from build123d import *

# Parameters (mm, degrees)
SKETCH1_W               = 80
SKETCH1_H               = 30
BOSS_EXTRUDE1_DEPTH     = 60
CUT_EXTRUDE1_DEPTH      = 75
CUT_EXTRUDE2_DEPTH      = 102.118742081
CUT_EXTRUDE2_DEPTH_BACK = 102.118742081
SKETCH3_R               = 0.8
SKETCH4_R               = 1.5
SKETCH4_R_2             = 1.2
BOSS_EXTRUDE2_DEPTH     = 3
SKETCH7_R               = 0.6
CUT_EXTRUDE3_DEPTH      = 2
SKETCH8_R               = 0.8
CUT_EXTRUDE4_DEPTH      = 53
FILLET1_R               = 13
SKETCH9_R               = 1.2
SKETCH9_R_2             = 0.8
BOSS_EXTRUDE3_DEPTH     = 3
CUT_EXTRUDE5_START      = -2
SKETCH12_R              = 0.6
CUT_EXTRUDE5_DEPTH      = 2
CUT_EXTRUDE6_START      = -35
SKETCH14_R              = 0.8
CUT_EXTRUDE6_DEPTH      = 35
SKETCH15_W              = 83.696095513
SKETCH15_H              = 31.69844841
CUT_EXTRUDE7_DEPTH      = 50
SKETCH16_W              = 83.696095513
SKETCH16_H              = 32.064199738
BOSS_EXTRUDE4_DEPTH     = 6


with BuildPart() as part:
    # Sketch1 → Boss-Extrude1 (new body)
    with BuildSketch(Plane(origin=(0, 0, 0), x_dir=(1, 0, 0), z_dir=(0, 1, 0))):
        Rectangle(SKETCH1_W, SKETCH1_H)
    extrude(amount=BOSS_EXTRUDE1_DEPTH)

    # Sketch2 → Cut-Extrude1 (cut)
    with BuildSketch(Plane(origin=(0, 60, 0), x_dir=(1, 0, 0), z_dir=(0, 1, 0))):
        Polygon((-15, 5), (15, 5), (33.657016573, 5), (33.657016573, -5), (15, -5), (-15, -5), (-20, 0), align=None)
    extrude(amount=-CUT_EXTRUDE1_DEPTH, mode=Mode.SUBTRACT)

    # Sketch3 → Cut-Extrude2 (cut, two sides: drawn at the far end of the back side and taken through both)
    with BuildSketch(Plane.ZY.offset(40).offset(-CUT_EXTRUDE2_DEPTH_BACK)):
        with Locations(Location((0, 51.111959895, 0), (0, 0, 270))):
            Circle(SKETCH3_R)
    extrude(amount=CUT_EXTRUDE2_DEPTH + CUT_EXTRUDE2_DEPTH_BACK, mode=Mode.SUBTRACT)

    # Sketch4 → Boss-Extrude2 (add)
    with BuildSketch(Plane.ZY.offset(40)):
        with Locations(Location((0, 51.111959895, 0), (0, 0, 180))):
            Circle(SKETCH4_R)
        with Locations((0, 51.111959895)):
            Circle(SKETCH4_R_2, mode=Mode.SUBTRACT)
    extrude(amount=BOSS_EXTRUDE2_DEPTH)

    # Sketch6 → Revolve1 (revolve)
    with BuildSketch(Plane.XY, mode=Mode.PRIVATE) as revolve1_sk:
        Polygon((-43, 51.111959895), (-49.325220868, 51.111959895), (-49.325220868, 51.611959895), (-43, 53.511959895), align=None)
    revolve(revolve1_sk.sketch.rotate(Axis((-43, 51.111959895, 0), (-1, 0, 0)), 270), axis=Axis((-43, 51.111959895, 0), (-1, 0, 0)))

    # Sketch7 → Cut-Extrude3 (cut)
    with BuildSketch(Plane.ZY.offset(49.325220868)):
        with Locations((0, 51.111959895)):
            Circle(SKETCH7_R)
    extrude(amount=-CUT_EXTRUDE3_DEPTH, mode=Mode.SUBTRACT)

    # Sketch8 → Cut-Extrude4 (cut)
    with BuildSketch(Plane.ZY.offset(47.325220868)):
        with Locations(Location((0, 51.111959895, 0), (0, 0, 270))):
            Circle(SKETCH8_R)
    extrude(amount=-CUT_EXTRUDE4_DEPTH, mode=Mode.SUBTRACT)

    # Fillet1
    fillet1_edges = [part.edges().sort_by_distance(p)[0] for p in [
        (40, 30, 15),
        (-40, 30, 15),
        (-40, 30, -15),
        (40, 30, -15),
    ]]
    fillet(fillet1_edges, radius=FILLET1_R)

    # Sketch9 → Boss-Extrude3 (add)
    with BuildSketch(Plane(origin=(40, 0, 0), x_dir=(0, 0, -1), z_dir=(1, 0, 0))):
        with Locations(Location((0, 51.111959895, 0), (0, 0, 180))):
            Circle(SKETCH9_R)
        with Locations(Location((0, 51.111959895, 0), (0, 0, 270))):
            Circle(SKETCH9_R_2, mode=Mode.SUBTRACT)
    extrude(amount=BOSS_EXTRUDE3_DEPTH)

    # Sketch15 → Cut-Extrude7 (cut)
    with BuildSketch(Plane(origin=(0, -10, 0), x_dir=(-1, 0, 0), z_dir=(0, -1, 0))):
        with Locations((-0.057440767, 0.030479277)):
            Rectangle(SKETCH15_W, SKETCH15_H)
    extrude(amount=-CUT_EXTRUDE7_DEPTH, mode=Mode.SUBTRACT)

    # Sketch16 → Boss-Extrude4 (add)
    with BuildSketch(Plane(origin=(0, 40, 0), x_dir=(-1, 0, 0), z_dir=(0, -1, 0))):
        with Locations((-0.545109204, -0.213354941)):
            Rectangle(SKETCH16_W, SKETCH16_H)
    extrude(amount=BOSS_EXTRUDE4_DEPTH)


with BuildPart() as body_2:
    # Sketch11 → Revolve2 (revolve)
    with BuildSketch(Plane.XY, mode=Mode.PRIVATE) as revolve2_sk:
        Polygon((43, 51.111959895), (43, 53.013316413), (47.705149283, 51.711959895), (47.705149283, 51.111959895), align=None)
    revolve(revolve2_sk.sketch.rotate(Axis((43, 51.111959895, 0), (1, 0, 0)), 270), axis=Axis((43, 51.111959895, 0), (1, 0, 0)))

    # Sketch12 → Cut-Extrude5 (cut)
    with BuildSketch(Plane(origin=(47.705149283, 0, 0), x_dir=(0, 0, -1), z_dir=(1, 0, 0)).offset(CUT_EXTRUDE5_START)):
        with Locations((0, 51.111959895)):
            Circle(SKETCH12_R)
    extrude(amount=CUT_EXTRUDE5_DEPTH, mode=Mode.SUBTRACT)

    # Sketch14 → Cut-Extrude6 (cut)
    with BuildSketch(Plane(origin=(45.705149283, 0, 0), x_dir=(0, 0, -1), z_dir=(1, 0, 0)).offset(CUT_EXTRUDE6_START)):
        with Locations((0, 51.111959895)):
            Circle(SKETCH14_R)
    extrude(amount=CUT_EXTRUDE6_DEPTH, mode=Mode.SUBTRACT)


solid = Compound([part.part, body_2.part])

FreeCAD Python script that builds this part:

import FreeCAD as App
import Part
import Sketcher
from FreeCAD import Vector
Q = App.Units.Quantity


def edges_at(feature, points):
    """Names of the edges that pass closest to the given points."""
    edges = feature.Shape.Edges
    near = lambda p: min(range(len(edges)), key=lambda i: edges[i].distToShape(Part.Vertex(*p))[0])
    return sorted({f"Edge{near(p) + 1}" for p in points})


def add_polygon(sketch, points):
    """Adds a closed chain of lines whose ends are joined by coincident constraints."""
    first, n = sketch.GeometryCount, len(points)
    for a, b in zip(points, points[1:] + points[:1]):
        sketch.addGeometry(Part.LineSegment(App.Vector(*a, 0), App.Vector(*b, 0)), False)
    for i in range(n):
        sketch.addConstraint(Sketcher.Constraint("Coincident", first + i, 2, first + (i + 1) % n, 1))

doc = App.newDocument("Part")
params = doc.addObject("Spreadsheet::Sheet", "Params")
for row, (alias, value) in enumerate([
    ("sketch1_width", "80 mm"),
    ("sketch1_height", "30 mm"),
    ("pad1_length", "60 mm"),
    ("sketch2_height", "10 mm"),
    ("pocket1_length", "75 mm"),
    ("sketch3_diameter", "1.6 mm"),
    ("sketch4_diameter", "3 mm"),
    ("sketch4_diameter2", "2.4 mm"),
    ("pad2_length", "3 mm"),
    ("sketch5_height", "2.4 mm"),
    ("sketch5_height2", "0.5 mm"),
    ("revolution_angle", "360 deg"),
    ("sketch6_diameter", "1.2 mm"),
    ("pocket3_length", "2 mm"),
    ("sketch7_diameter", "1.6 mm"),
    ("pocket4_length", "53 mm"),
    ("fillet_radius", "13 mm"),
    ("sketch8_diameter", "2.4 mm"),
    ("sketch8_diameter2", "1.6 mm"),
    ("pad3_length", "3 mm"),
    ("pocket5_length", "50 mm"),
    ("pad4_length", "6 mm"),
    ("sketch11_height", "0.6 mm"),
    ("revolution2_angle", "360 deg"),
    ("sketch12_diameter", "1.2 mm"),
    ("pocket6_length", "2 mm"),
    ("sketch13_diameter", "1.6 mm"),
    ("pocket7_length", "35 mm"),
], start=1):
    params.set(f"A{row}", alias)
    params.set(f"B{row}", "=" + value)
    params.setAlias(f"B{row}", alias)

body = doc.addObject("PartDesign::Body", "Body")

# Sketch on XZ plane
sketch1 = doc.addObject("Sketcher::SketchObject", "Sketch")
body.addObject(sketch1)
sketch1.AttachmentSupport = (doc.XZ_Plane, [""])
sketch1.MapMode = "FlatFace"
add_polygon(sketch1, [(-40, -15), (-40, 15), (40, 15), (40, -15)])  # lines 0-3
sketch1.addConstraint([
    Sketcher.Constraint("Vertical", 0),
    Sketcher.Constraint("Horizontal", 1),
    Sketcher.Constraint("Vertical", 2),
    Sketcher.Constraint("Horizontal", 3),
    Sketcher.Constraint("Symmetric", 0, 2, 2, 2, -1, 1),
    Sketcher.Constraint("DistanceX", 1, 1, 1, 2, Q("80 mm")),
    Sketcher.Constraint("DistanceY", 0, 1, 0, 2, Q("30 mm")),
])
sketch1.setExpression("Constraints[9]", "Params.sketch1_width")
sketch1.setExpression("Constraints[10]", "Params.sketch1_height")
pad1 = doc.addObject("PartDesign::Pad", "Pad")
body.addObject(pad1)
pad1.Profile = sketch1
pad1.setExpression("Length", "Params.pad1_length")
pad1.Reversed = True

# Sketch on XZ plane
sketch2 = doc.addObject("Sketcher::SketchObject", "Sketch001")
body.addObject(sketch2)
sketch2.AttachmentSupport = (doc.XZ_Plane, [""])
sketch2.MapMode = "FlatFace"
sketch2.AttachmentOffset = App.Placement(Vector(0, 0, -60), App.Rotation())
add_polygon(sketch2, [(34, -5), (-15, -5), (-20, 0), (-15, 5), (34, 5)])  # lines 0-4
sketch2.addConstraint([
    Sketcher.Constraint("Horizontal", 0),
    Sketcher.Constraint("Horizontal", 3),
    Sketcher.Constraint("Vertical", 4),
    Sketcher.Constraint("Symmetric", 0, 2, 2, 2, -1),
    Sketcher.Constraint("PointOnObject", 1, 2, -1),
    Sketcher.Constraint("Perpendicular", 1, 2),
    Sketcher.Constraint("DistanceY", 4, 2, 4, 1, Q("10 mm")),
    Sketcher.Constraint("DistanceX", 0, 2, -1, 1, Q("15 mm")),
    Sketcher.Constraint("DistanceX", 0, 2, 0, 1, Q("48.657017 mm")),
])
sketch2.setExpression("Constraints[11]", "Params.sketch2_height")
pocket1 = doc.addObject("PartDesign::Pocket", "Pocket")
body.addObject(pocket1)
pocket1.Profile = sketch2
pocket1.setExpression("Length", "Params.pocket1_length")
pocket1.Reversed = True

# Sketch on YZ plane
sketch3 = doc.addObject("Sketcher::SketchObject", "Sketch002")
body.addObject(sketch3)
sketch3.AttachmentSupport = (doc.YZ_Plane, [""])
sketch3.MapMode = "FlatFace"
sketch3.AttachmentOffset = App.Placement(Vector(0, 0, -40), App.Rotation())
sketch3.addGeometry(Part.Circle(Vector(51.1, 0, 0), Vector(0, 0, 1), 0.8), False)
sketch3.addConstraint([
    Sketcher.Constraint("PointOnObject", 0, 3, -1),
    Sketcher.Constraint("Diameter", 0, Q("1.6 mm")),
    Sketcher.Constraint("DistanceX", -1, 1, 0, 3, Q("51.11196 mm")),
])
sketch3.setExpression("Constraints[1]", "Params.sketch3_diameter")
pocket2 = doc.addObject("PartDesign::Pocket", "Pocket001")
body.addObject(pocket2)
pocket2.Profile = sketch3
pocket2.Type = "ThroughAll"
pocket2.Midplane = True

# Sketch on YZ plane
sketch4 = doc.addObject("Sketcher::SketchObject", "Sketch003")
body.addObject(sketch4)
sketch4.AttachmentSupport = (doc.YZ_Plane, [""])
sketch4.MapMode = "FlatFace"
sketch4.AttachmentOffset = App.Placement(Vector(0, 0, -40), App.Rotation())
sketch4.addGeometry([
    Part.Circle(Vector(51.1, 0, 0), Vector(0, 0, 1), 1.5),
    Part.Circle(Vector(51.1, 0, 0), Vector(0, 0, 1), 1.2),
], False)
sketch4.addConstraint([
    Sketcher.Constraint("Coincident", 1, 3, 0, 3),
    Sketcher.Constraint("PointOnObject", 0, 3, -1),
    Sketcher.Constraint("Diameter", 0, Q("3 mm")),
    Sketcher.Constraint("Diameter", 1, Q("2.4 mm")),
    Sketcher.Constraint("DistanceX", -1, 1, 0, 3, Q("51.11196 mm")),
])
sketch4.setExpression("Constraints[2]", "Params.sketch4_diameter")
sketch4.setExpression("Constraints[3]", "Params.sketch4_diameter2")
pad2 = doc.addObject("PartDesign::Pad", "Pad001")
body.addObject(pad2)
pad2.Profile = sketch4
pad2.setExpression("Length", "Params.pad2_length")
pad2.Reversed = True

# Sketch on XY plane
sketch5 = doc.addObject("Sketcher::SketchObject", "Sketch004")
body.addObject(sketch5)
sketch5.AttachmentSupport = (doc.XY_Plane, [""])
sketch5.MapMode = "FlatFace"
add_polygon(sketch5, [(-49.3, 51.1), (-43, 51.1), (-43, 53.5), (-49.3, 51.6)])  # lines 0-3
sketch5.addGeometry(Part.LineSegment(Vector(-43, 51.1, 0), Vector(-49.3, 51.1, 0)), True)  # axis
sketch5.addConstraint([
    Sketcher.Constraint("Horizontal", 0),
    Sketcher.Constraint("Vertical", 1),
    Sketcher.Constraint("Vertical", 3),
    Sketcher.Constraint("Horizontal", 4),
    Sketcher.Constraint("Coincident", 4, 1, 0, 2),
    Sketcher.Constraint("Vertical", 2, 2, 4, 2),
    Sketcher.Constraint("DistanceY", 1, 1, 1, 2, Q("2.4 mm")),
    Sketcher.Constraint("DistanceY", 3, 2, 3, 1, Q("0.5 mm")),
    Sketcher.Constraint("DistanceX", 0, 2, -1, 1, Q("43 mm")),
    Sketcher.Constraint("DistanceX", 0, 1, 0, 2, Q("6.325221 mm")),
    Sketcher.Constraint("DistanceY", -1, 1, 0, 2, Q("51.11196 mm")),
])
sketch5.setExpression("Constraints[10]", "Params.sketch5_height")
sketch5.setExpression("Constraints[11]", "Params.sketch5_height2")
revolution = doc.addObject("PartDesign::Revolution", "Revolution")
body.addObject(revolution)
revolution.Profile = sketch5
revolution.ReferenceAxis = (sketch5, ["Axis0"])
revolution.setExpression("Angle", "Params.revolution_angle")

# Sketch on YZ plane
sketch6 = doc.addObject("Sketcher::SketchObject", "Sketch005")
body.addObject(sketch6)
sketch6.AttachmentSupport = (doc.YZ_Plane, [""])
sketch6.MapMode = "FlatFace"
sketch6.AttachmentOffset = App.Placement(Vector(0, 0, -49.325221), App.Rotation())
sketch6.addGeometry(Part.Circle(Vector(51.1, 0, 0), Vector(0, 0, 1), 0.6), False)
sketch6.addConstraint([
    Sketcher.Constraint("PointOnObject", 0, 3, -1),
    Sketcher.Constraint("Diameter", 0, Q("1.2 mm")),
    Sketcher.Constraint("DistanceX", -1, 1, 0, 3, Q("51.11196 mm")),
])
sketch6.setExpression("Constraints[1]", "Params.sketch6_diameter")
pocket3 = doc.addObject("PartDesign::Pocket", "Pocket002")
body.addObject(pocket3)
pocket3.Profile = sketch6
pocket3.setExpression("Length", "Params.pocket3_length")
pocket3.Reversed = True

# Sketch on YZ plane
sketch7 = doc.addObject("Sketcher::SketchObject", "Sketch006")
body.addObject(sketch7)
sketch7.AttachmentSupport = (doc.YZ_Plane, [""])
sketch7.MapMode = "FlatFace"
sketch7.AttachmentOffset = App.Placement(Vector(0, 0, -47.325221), App.Rotation())
sketch7.addGeometry(Part.Circle(Vector(51.1, 0, 0), Vector(0, 0, 1), 0.8), False)
sketch7.addConstraint([
    Sketcher.Constraint("PointOnObject", 0, 3, -1),
    Sketcher.Constraint("Diameter", 0, Q("1.6 mm")),
    Sketcher.Constraint("DistanceX", -1, 1, 0, 3, Q("51.11196 mm")),
])
sketch7.setExpression("Constraints[1]", "Params.sketch7_diameter")
pocket4 = doc.addObject("PartDesign::Pocket", "Pocket003")
body.addObject(pocket4)
pocket4.Profile = sketch7
pocket4.setExpression("Length", "Params.pocket4_length")
pocket4.Reversed = True
doc.recompute()

fillet = doc.addObject("PartDesign::Fillet", "Fillet")
body.addObject(fillet)
fillet.Base = (pocket4, edges_at(pocket4, [
    (40, 30, 15),
    (-40, 30, 15),
    (-40, 30, -15),
    (40, 30, -15),
]))
fillet.setExpression("Radius", "Params.fillet_radius")

# Sketch on YZ plane
sketch8 = doc.addObject("Sketcher::SketchObject", "Sketch007")
body.addObject(sketch8)
sketch8.AttachmentSupport = (doc.YZ_Plane, [""])
sketch8.MapMode = "FlatFace"
sketch8.AttachmentOffset = App.Placement(Vector(0, 0, 40), App.Rotation())
sketch8.addGeometry([
    Part.Circle(Vector(51.1, 0, 0), Vector(0, 0, 1), 1.2),
    Part.Circle(Vector(51.1, 0, 0), Vector(0, 0, 1), 0.8),
], False)
sketch8.addConstraint([
    Sketcher.Constraint("Coincident", 1, 3, 0, 3),
    Sketcher.Constraint("PointOnObject", 0, 3, -1),
    Sketcher.Constraint("Diameter", 0, Q("2.4 mm")),
    Sketcher.Constraint("Diameter", 1, Q("1.6 mm")),
    Sketcher.Constraint("DistanceX", -1, 1, 0, 3, Q("51.11196 mm")),
])
sketch8.setExpression("Constraints[2]", "Params.sketch8_diameter")
sketch8.setExpression("Constraints[3]", "Params.sketch8_diameter2")
pad3 = doc.addObject("PartDesign::Pad", "Pad002")
body.addObject(pad3)
pad3.Profile = sketch8
pad3.setExpression("Length", "Params.pad3_length")

# Sketch on XZ plane
sketch9 = doc.addObject("Sketcher::SketchObject", "Sketch008")
body.addObject(sketch9)
sketch9.AttachmentSupport = (doc.XZ_Plane, [""])
sketch9.MapMode = "FlatFace"
sketch9.AttachmentOffset = App.Placement(Vector(0, 0, 10), App.Rotation())
add_polygon(sketch9, [(42, -16), (42, 16), (-42, 16), (-42, -16)])  # lines 0-3
sketch9.addConstraint([
    Sketcher.Constraint("Vertical", 0),
    Sketcher.Constraint("Horizontal", 1),
    Sketcher.Constraint("Vertical", 2),
    Sketcher.Constraint("Horizontal", 3),
    Sketcher.Constraint("DistanceY", 0, 1, 0, 2, Q("31.698448 mm")),
    Sketcher.Constraint("DistanceX", 1, 2, 1, 1, Q("83.696096 mm")),
    Sketcher.Constraint("DistanceX", -1, 1, 0, 2, Q("41.905489 mm")),
    Sketcher.Constraint("DistanceY", -1, 1, 0, 2, Q("15.818745 mm")),
])
pocket5 = doc.addObject("PartDesign::Pocket", "Pocket004")
body.addObject(pocket5)
pocket5.Profile = sketch9
pocket5.setExpression("Length", "Params.pocket5_length")

# Sketch on XZ plane
sketch10 = doc.addObject("Sketcher::SketchObject", "Sketch009")
body.addObject(sketch10)
sketch10.AttachmentSupport = (doc.XZ_Plane, [""])
sketch10.MapMode = "FlatFace"
sketch10.AttachmentOffset = App.Placement(Vector(0, 0, -40), App.Rotation())
add_polygon(sketch10, [(42, -16), (42, 16), (-41, 16), (-41, -16)])  # lines 0-3
sketch10.addConstraint([
    Sketcher.Constraint("Vertical", 0),
    Sketcher.Constraint("Horizontal", 1),
    Sketcher.Constraint("Vertical", 2),
    Sketcher.Constraint("Horizontal", 3),
    Sketcher.Constraint("DistanceY", 0, 1, 0, 2, Q("32.0642 mm")),
    Sketcher.Constraint("DistanceX", 1, 2, 1, 1, Q("83.696096 mm")),
    Sketcher.Constraint("DistanceX", 1, 2, -1, 1, Q("41.302939 mm")),
    Sketcher.Constraint("DistanceY", -1, 1, 0, 2, Q("16.245455 mm")),
])
pad4 = doc.addObject("PartDesign::Pad", "Pad003")
body.addObject(pad4)
pad4.Profile = sketch10
pad4.setExpression("Length", "Params.pad4_length")
body2 = doc.addObject("PartDesign::Body", "Body001")

# Sketch on XY plane
sketch11 = doc.addObject("Sketcher::SketchObject", "Sketch010")
body2.addObject(sketch11)
sketch11.AttachmentSupport = (doc.getObject("XY_Plane001"), [""])
sketch11.MapMode = "FlatFace"
add_polygon(sketch11, [(43, 53), (43, 51.1), (47.7, 51.1), (47.7, 51.7)])  # lines 0-3
sketch11.addGeometry(Part.LineSegment(Vector(43, 51.1, 0), Vector(47.7, 51.1, 0)), True)  # axis
sketch11.addConstraint([
    Sketcher.Constraint("Vertical", 0),
    Sketcher.Constraint("Horizontal", 1),
    Sketcher.Constraint("Vertical", 2),
    Sketcher.Constraint("Horizontal", 4),
    Sketcher.Constraint("Coincident", 4, 1, 0, 2),
    Sketcher.Constraint("Vertical", 2, 2, 4, 2),
    Sketcher.Constraint("DistanceY", 2, 1, 2, 2, Q("0.6 mm")),
    Sketcher.Constraint("DistanceX", -1, 1, 0, 2, Q("43 mm")),
    Sketcher.Constraint("Distance", 3, Q("4.881799 mm")),
    Sketcher.Constraint("DistanceX", 1, 1, 1, 2, Q("4.705149 mm")),
    Sketcher.Constraint("DistanceY", -1, 1, 0, 2, Q("51.11196 mm")),
])
sketch11.setExpression("Constraints[10]", "Params.sketch11_height")
revolution2 = doc.addObject("PartDesign::Revolution", "Revolution001")
body2.addObject(revolution2)
revolution2.Profile = sketch11
revolution2.ReferenceAxis = (sketch11, ["Axis0"])
revolution2.setExpression("Angle", "Params.revolution2_angle")

# Sketch on YZ plane
sketch12 = doc.addObject("Sketcher::SketchObject", "Sketch011")
body2.addObject(sketch12)
sketch12.AttachmentSupport = (doc.getObject("YZ_Plane001"), [""])
sketch12.MapMode = "FlatFace"
sketch12.AttachmentOffset = App.Placement(Vector(0, 0, 45.705149), App.Rotation())
sketch12.addGeometry(Part.Circle(Vector(51.1, 0, 0), Vector(0, 0, 1), 0.6), False)
sketch12.addConstraint([
    Sketcher.Constraint("PointOnObject", 0, 3, -1),
    Sketcher.Constraint("Diameter", 0, Q("1.2 mm")),
    Sketcher.Constraint("DistanceX", -1, 1, 0, 3, Q("51.11196 mm")),
])
sketch12.setExpression("Constraints[1]", "Params.sketch12_diameter")
pocket6 = doc.addObject("PartDesign::Pocket", "Pocket005")
body2.addObject(pocket6)
pocket6.Profile = sketch12
pocket6.setExpression("Length", "Params.pocket6_length")
pocket6.Reversed = True

# Sketch on YZ plane
sketch13 = doc.addObject("Sketcher::SketchObject", "Sketch012")
body2.addObject(sketch13)
sketch13.AttachmentSupport = (doc.getObject("YZ_Plane001"), [""])
sketch13.MapMode = "FlatFace"
sketch13.AttachmentOffset = App.Placement(Vector(0, 0, 10.705149), App.Rotation())
sketch13.addGeometry(Part.Circle(Vector(51.1, 0, 0), Vector(0, 0, 1), 0.8), False)
sketch13.addConstraint([
    Sketcher.Constraint("PointOnObject", 0, 3, -1),
    Sketcher.Constraint("Diameter", 0, Q("1.6 mm")),
    Sketcher.Constraint("DistanceX", -1, 1, 0, 3, Q("51.11196 mm")),
])
sketch13.setExpression("Constraints[1]", "Params.sketch13_diameter")
pocket7 = doc.addObject("PartDesign::Pocket", "Pocket006")
body2.addObject(pocket7)
pocket7.Profile = sketch13
pocket7.setExpression("Length", "Params.pocket7_length")
pocket7.Reversed = True

doc.recompute()
